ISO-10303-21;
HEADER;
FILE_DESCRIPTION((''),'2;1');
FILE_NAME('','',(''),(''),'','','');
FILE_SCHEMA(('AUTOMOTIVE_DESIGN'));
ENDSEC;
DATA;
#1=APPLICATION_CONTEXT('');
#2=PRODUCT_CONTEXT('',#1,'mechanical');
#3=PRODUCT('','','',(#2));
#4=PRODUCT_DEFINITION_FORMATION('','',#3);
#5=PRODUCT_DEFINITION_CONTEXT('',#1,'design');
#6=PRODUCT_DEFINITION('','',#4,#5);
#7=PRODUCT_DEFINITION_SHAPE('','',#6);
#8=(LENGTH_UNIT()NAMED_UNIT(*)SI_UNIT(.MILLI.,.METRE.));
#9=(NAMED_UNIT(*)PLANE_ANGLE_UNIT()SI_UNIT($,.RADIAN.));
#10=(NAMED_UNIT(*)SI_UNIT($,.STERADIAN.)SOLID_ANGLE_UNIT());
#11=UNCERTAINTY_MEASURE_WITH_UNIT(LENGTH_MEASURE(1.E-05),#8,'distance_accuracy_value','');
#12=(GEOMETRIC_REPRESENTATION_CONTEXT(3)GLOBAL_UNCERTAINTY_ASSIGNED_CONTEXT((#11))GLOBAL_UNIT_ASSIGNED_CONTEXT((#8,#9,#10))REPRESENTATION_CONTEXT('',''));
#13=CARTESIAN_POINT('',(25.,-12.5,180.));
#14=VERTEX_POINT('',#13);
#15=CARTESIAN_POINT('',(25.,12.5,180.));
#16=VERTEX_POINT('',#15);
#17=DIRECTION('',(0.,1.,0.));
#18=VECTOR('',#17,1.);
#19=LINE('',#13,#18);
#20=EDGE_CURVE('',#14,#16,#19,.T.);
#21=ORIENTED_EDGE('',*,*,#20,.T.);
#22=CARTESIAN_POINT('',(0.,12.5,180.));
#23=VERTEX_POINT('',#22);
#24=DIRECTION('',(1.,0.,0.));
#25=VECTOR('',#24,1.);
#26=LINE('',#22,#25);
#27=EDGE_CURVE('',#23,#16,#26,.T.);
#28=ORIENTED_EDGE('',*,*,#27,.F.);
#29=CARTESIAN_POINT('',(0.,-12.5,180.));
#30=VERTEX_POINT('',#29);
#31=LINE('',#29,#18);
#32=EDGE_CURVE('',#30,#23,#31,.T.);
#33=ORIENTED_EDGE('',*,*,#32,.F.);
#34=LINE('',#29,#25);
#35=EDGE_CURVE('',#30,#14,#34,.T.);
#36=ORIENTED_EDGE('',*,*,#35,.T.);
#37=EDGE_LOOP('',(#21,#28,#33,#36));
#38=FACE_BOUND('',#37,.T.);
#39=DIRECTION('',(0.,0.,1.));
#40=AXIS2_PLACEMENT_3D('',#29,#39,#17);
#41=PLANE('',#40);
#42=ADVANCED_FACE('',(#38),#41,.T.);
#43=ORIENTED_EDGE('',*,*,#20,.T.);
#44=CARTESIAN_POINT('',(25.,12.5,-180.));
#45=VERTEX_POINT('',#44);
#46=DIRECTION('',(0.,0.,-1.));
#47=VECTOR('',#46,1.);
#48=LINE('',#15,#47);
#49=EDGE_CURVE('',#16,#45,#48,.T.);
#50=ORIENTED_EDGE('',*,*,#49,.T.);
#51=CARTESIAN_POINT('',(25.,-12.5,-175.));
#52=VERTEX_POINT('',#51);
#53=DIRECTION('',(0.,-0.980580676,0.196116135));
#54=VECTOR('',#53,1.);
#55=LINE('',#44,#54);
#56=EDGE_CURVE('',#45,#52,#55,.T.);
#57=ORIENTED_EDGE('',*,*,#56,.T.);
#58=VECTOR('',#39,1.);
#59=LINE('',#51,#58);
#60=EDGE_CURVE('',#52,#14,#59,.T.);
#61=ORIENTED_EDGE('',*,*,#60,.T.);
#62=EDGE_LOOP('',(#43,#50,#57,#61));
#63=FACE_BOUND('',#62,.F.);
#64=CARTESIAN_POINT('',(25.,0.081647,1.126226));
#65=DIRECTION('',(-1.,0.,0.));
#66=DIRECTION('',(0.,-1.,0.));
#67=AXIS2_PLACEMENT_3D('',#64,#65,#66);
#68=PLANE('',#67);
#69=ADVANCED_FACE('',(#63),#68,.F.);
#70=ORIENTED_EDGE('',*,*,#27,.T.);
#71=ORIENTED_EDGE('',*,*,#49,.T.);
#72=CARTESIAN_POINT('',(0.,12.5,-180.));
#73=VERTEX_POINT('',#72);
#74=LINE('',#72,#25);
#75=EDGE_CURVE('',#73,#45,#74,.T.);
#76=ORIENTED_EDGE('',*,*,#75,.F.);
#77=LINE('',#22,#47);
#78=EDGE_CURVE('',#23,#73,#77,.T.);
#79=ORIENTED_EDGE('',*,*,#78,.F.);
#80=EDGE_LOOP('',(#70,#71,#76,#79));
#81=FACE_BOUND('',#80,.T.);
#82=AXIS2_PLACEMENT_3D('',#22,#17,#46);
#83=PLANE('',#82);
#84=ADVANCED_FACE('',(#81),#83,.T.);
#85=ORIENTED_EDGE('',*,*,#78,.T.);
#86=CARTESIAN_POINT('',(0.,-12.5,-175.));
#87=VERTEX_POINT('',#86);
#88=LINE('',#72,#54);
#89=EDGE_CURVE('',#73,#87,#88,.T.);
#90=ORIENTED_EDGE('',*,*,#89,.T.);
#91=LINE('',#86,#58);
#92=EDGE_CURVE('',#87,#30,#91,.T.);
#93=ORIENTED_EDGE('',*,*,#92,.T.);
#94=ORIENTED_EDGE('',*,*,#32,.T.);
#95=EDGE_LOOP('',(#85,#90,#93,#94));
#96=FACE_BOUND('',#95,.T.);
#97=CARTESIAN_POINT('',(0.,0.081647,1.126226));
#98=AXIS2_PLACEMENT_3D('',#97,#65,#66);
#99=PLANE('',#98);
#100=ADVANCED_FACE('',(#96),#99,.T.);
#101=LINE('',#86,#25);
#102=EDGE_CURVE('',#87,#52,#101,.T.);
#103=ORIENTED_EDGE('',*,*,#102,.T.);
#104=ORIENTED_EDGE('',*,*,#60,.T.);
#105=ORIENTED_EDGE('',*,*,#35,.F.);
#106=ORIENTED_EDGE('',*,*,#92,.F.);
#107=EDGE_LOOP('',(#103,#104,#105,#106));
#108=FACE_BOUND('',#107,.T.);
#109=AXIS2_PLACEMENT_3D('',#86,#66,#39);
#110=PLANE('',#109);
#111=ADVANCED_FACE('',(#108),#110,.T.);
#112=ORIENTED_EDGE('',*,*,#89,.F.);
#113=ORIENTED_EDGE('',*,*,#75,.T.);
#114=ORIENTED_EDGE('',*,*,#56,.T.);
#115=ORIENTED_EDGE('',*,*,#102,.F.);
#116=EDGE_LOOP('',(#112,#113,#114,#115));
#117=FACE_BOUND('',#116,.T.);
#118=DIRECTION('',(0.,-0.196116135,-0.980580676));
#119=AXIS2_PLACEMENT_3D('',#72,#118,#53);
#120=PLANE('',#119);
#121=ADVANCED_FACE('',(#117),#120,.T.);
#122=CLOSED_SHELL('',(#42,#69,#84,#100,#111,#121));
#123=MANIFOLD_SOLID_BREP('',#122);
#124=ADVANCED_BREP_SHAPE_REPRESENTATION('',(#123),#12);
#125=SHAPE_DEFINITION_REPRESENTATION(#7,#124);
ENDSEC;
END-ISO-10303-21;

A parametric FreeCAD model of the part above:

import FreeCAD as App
import Part
import Sketcher
from FreeCAD import Vector
Q = App.Units.Quantity


def add_polygon(sketch, points):
    """Adds a closed chain of lines whose ends are joined by coincident constraints."""
    first, n = sketch.GeometryCount, len(points)
    for a, b in zip(points, points[1:] + points[:1]):
        sketch.addGeometry(Part.LineSegment(App.Vector(*a, 0), App.Vector(*b, 0)), False)
    for i in range(n):
        sketch.addConstraint(Sketcher.Constraint("Coincident", first + i, 2, first + (i + 1) % n, 1))

doc = App.newDocument("Part")
params = doc.addObject("Spreadsheet::Sheet", "Params")
for row, (alias, value) in enumerate([
    ("sketch1_width", "25 mm"),
    ("sketch1_height", "355 mm"),
    ("sketch1_height2", "360 mm"),
    ("pad1_length", "25 mm"),
], start=1):
    params.set(f"A{row}", alias)
    params.set(f"B{row}", "=" + value)
    params.setAlias(f"B{row}", alias)

body = doc.addObject("PartDesign::Body", "Body")

sketch1 = body.newObject("Sketcher::SketchObject", "Sketch")
sketch1.AttachmentSupport = (doc.getObject("YZ_Plane"), [""])
sketch1.MapMode = "FlatFace"
add_polygon(sketch1, [(12.5, 180), (-12.5, 180), (-12.5, -175), (12.5, -180)])
sketch1.addConstraint([
    Sketcher.Constraint("Horizontal", 0),
    Sketcher.Constraint("Vertical", 1),
    Sketcher.Constraint("Vertical", 3),
    Sketcher.Constraint("Symmetric", 0, 2, 2, 2, -1, 1),
    Sketcher.Constraint("DistanceX", 0, 2, 0, 1, Q("25 mm")),
    Sketcher.Constraint("DistanceY", 1, 2, 1, 1, Q("355 mm")),
    Sketcher.Constraint("DistanceY", 3, 1, 3, 2, Q("360 mm")),
])
sketch1.setExpression("Constraints[8]", "Params.sketch1_width")
sketch1.setExpression("Constraints[9]", "Params.sketch1_height")
sketch1.setExpression("Constraints[10]", "Params.sketch1_height2")
pad1 = body.newObject("PartDesign::Pad", "Pad")
pad1.Profile = sketch1
pad1.setExpression("Length", "Params.pad1_length")

doc.recompute()
